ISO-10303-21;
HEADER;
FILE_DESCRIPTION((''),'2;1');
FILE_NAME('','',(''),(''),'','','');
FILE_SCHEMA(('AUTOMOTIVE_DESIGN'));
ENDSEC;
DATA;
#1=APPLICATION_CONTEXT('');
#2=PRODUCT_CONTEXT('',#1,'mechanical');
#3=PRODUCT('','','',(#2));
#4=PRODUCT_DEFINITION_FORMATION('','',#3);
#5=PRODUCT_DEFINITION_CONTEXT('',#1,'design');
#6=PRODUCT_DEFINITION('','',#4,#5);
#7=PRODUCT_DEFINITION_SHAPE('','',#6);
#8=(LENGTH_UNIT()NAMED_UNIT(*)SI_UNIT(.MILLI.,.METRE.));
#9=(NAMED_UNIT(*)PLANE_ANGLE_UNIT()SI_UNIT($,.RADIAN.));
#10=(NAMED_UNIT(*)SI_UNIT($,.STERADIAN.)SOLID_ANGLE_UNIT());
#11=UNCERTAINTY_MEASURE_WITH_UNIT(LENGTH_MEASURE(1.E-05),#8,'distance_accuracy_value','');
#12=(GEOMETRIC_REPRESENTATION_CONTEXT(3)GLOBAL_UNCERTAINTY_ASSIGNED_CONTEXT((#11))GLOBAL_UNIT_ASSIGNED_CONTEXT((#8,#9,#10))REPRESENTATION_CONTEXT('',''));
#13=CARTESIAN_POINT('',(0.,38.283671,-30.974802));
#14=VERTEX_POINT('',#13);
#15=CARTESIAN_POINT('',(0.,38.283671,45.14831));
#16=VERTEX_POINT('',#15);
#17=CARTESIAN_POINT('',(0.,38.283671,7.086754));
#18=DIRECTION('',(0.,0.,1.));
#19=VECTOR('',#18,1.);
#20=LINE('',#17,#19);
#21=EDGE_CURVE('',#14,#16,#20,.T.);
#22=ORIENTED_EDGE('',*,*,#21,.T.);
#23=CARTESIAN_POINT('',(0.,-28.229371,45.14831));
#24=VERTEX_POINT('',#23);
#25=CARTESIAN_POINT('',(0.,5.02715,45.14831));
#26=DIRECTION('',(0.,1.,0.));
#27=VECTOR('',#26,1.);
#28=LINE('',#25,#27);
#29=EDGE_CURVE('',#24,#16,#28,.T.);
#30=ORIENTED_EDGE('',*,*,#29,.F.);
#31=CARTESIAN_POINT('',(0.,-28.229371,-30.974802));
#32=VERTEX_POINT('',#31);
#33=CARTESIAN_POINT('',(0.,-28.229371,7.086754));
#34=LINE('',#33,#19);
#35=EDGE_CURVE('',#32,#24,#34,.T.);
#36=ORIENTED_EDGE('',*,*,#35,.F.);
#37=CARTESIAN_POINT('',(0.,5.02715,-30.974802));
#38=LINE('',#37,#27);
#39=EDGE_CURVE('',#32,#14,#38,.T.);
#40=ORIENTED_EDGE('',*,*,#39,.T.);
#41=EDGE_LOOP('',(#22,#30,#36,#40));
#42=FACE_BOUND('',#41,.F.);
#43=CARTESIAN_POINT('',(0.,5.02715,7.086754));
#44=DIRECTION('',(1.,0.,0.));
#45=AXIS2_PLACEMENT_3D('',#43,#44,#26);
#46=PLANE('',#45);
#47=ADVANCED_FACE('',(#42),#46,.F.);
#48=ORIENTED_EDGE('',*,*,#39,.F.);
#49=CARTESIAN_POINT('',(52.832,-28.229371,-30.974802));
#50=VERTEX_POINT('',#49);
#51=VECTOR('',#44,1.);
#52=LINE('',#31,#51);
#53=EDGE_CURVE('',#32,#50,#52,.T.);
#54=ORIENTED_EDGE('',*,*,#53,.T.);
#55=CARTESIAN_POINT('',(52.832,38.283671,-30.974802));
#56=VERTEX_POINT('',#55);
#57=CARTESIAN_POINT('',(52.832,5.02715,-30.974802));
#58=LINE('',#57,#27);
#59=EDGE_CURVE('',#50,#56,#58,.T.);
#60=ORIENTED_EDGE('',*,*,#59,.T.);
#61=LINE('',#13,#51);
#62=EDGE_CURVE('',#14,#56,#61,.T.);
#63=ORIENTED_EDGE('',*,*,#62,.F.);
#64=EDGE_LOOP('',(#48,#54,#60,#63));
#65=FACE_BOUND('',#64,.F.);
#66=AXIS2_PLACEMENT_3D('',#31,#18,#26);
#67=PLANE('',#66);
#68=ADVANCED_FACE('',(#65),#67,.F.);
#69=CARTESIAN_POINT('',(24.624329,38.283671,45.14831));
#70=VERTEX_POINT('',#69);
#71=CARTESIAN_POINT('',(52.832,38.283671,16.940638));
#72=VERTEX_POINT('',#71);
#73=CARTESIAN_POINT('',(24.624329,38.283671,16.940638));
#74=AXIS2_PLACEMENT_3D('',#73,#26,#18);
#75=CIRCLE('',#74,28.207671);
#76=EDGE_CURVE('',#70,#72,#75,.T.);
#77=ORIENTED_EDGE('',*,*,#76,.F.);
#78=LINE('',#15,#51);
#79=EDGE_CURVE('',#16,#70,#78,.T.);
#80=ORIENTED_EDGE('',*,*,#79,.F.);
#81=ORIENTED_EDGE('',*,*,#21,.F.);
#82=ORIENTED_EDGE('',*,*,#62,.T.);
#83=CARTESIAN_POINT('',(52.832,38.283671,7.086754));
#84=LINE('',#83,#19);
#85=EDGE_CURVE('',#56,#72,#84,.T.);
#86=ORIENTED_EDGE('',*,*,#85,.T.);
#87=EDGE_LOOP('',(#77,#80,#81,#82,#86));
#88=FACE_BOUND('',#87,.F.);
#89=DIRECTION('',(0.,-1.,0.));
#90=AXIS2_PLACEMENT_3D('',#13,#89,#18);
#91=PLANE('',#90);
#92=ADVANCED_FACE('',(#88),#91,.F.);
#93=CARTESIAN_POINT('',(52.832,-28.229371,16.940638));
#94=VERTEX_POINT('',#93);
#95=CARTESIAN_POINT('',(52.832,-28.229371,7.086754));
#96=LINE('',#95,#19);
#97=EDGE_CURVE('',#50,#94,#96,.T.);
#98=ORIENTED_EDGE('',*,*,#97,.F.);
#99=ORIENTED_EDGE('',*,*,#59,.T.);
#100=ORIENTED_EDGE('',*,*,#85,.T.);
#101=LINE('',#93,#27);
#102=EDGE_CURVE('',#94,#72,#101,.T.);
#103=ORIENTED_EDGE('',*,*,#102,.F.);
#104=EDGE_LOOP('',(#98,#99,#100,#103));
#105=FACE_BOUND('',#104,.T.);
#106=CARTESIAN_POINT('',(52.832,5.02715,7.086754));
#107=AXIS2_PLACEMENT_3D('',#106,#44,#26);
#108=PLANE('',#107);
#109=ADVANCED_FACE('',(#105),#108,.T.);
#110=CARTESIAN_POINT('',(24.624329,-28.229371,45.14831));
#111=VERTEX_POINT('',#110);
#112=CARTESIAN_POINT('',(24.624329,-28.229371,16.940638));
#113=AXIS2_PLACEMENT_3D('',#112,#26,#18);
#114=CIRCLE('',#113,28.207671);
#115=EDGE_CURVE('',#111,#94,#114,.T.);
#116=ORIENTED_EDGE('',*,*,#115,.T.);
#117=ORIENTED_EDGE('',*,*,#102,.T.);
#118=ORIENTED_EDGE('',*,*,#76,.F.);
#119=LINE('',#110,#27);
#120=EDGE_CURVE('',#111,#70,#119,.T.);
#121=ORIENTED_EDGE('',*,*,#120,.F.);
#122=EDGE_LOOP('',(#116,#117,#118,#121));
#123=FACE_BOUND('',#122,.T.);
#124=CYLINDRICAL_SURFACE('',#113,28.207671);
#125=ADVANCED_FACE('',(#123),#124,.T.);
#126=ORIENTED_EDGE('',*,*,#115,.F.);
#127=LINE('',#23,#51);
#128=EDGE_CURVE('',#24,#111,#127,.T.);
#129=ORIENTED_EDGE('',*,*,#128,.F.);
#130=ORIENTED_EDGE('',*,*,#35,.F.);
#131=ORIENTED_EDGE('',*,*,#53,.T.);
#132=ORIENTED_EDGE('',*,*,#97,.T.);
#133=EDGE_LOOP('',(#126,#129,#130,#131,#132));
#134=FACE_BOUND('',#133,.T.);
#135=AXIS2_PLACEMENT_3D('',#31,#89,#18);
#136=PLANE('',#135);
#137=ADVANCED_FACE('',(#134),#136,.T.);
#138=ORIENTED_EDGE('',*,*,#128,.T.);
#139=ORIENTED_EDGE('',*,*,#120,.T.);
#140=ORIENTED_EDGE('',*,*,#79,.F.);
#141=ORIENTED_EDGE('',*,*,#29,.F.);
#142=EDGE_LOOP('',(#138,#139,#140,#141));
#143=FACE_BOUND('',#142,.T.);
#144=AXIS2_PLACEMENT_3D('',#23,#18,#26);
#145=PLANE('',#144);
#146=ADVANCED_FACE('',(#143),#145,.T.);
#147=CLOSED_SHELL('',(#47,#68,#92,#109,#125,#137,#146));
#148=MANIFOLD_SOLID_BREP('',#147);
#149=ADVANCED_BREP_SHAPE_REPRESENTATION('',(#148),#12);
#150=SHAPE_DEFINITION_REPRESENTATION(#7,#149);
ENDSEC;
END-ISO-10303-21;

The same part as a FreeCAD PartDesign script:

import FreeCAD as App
import Part
import Sketcher
Q = App.Units.Quantity


def edges_at(feature, points):
    """Names of the edges that pass closest to the given points."""
    edges = feature.Shape.Edges
    near = lambda p: min(range(len(edges)), key=lambda i: edges[i].distToShape(Part.Vertex(*p))[0])
    return sorted({f"Edge{near(p) + 1}" for p in points})

doc = App.newDocument("Part")
body = doc.addObject("PartDesign::Body", "Body")

# Sketch on YZ plane
sketch1 = body.newObject("Sketcher::SketchObject", "Sketch")
sketch1.AttachmentSupport = (doc.getObject("YZ_Plane"), [""])
sketch1.MapMode = "FlatFace"
sketch1.addGeometry([
    Part.LineSegment(App.Vector(-28, 45, 0), App.Vector(-28, -31, 0)),
    Part.LineSegment(App.Vector(-28, -31, 0), App.Vector(38, -31, 0)),
    Part.LineSegment(App.Vector(38, -31, 0), App.Vector(38, 45, 0)),
    Part.LineSegment(App.Vector(38, 45, 0), App.Vector(-28, 45, 0)),
], False)
sketch1.addConstraint([
    Sketcher.Constraint("Coincident", 0, 2, 1, 1),
    Sketcher.Constraint("Coincident", 1, 2, 2, 1),
    Sketcher.Constraint("Coincident", 2, 2, 3, 1),
    Sketcher.Constraint("Coincident", 3, 2, 0, 1),
    Sketcher.Constraint("Vertical", 0),
    Sketcher.Constraint("Horizontal", 1),
    Sketcher.Constraint("Vertical", 2),
    Sketcher.Constraint("Horizontal", 3),
    Sketcher.Constraint("DistanceY", 0, 2, 0, 1, Q("76.123111 mm")),
    Sketcher.Constraint("DistanceY", 0, 2, -1, 1, Q("30.974802 mm")),
    Sketcher.Constraint("DistanceX", 1, 1, 1, 2, Q("66.513043 mm")),
    Sketcher.Constraint("DistanceX", 0, 2, -1, 1, Q("28.229371 mm")),
])
pad1 = body.newObject("PartDesign::Pad", "Pad")
pad1.Profile = sketch1
pad1.Length = Q("2.08 in")
doc.recompute()

fillet = body.newObject("PartDesign::Fillet", "Fillet")
fillet.Base = (pad1, edges_at(pad1, [(52.832, 5.027, 45.148)]))
fillet.Radius = 28.207671

doc.recompute()
